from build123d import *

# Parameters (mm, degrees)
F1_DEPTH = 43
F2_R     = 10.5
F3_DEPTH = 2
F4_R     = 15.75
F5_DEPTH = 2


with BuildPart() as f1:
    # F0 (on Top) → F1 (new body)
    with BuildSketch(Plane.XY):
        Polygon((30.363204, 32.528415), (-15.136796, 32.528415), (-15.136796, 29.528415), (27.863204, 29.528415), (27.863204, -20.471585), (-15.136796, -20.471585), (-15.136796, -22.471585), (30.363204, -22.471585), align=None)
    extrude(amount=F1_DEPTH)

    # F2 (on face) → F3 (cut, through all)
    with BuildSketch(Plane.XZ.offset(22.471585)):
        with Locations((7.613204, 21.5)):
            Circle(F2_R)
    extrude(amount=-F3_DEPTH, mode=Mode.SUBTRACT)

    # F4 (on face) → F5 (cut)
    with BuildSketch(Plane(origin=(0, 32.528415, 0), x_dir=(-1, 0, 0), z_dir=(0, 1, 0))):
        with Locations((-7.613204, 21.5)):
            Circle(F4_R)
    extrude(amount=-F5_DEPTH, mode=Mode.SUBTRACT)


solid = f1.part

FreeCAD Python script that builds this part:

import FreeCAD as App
import Part
import Sketcher

V = App.Vector
Q = App.Units.Quantity

doc = App.newDocument("Part")
params = doc.addObject("Spreadsheet::Sheet", "Params")
for row, (alias, value) in enumerate([
    ("sketch1_width", "43 mm"),
    ("sketch1_height", "3 mm"),
    ("sketch1_height2", "50 mm"),
    ("sketch1_height3", "2 mm"),
    ("sketch1_width2", "45.5 mm"),
    ("pad1_length", "43 mm"),
    ("sketch2_diameter", "21 mm"),
    ("pocket1_length", "2 mm"),
    ("sketch3_diameter", "31.5 mm"),
    ("pocket2_length", "2 mm"),
], start=1):
    params.set(f"A{row}", alias)
    params.set(f"B{row}", "=" + value)
    params.setAlias(f"B{row}", alias)

body = doc.addObject("PartDesign::Body", "Body")

sketch1 = doc.addObject("Sketcher::SketchObject", "Sketch")
body.addObject(sketch1)
sketch1.AttachmentSupport = (doc.XY_Plane, [""])
sketch1.MapMode = "FlatFace"
sketch1.addGeometry([
    Part.LineSegment(V(30.363204, 32.528415, 0), V(-15.136796, 32.528415, 0)),
    Part.LineSegment(V(-15.136796, 32.528415, 0), V(-15.136796, 29.528415, 0)),
    Part.LineSegment(V(-15.136796, 29.528415, 0), V(27.863204, 29.528415, 0)),
    Part.LineSegment(V(27.863204, 29.528415, 0), V(27.863204, -20.471585, 0)),
    Part.LineSegment(V(27.863204, -20.471585, 0), V(-15.136796, -20.471585, 0)),
    Part.LineSegment(V(-15.136796, -20.471585, 0), V(-15.136796, -22.471585, 0)),
    Part.LineSegment(V(-15.136796, -22.471585, 0), V(30.363204, -22.471585, 0)),
    Part.LineSegment(V(30.363204, -22.471585, 0), V(30.363204, 32.528415, 0)),
], False)
sketch1.addConstraint([
    Sketcher.Constraint("Coincident", 0, 2, 1, 1),
    Sketcher.Constraint("Coincident", 1, 2, 2, 1),
    Sketcher.Constraint("Coincident", 2, 2, 3, 1),
    Sketcher.Constraint("Coincident", 3, 2, 4, 1),
    Sketcher.Constraint("Coincident", 4, 2, 5, 1),
    Sketcher.Constraint("Coincident", 5, 2, 6, 1),
    Sketcher.Constraint("Coincident", 6, 2, 7, 1),
    Sketcher.Constraint("Coincident", 7, 2, 0, 1),
    Sketcher.Constraint("Horizontal", 0),
    Sketcher.Constraint("Vertical", 1),
    Sketcher.Constraint("Horizontal", 2),
    Sketcher.Constraint("Vertical", 3),
    Sketcher.Constraint("Horizontal", 4),
    Sketcher.Constraint("Vertical", 5),
    Sketcher.Constraint("Horizontal", 6),
    Sketcher.Constraint("Vertical", 7),
    Sketcher.Constraint("Vertical", 1, 2, 4, 2),
    Sketcher.Constraint("DistanceX", 2, 1, 2, 2, Q("43 mm")),
    Sketcher.Constraint("DistanceY", 1, 2, 1, 1, Q("3 mm")),
    Sketcher.Constraint("DistanceY", 3, 2, 3, 1, Q("50 mm")),
    Sketcher.Constraint("DistanceY", 5, 2, 5, 1, Q("2 mm")),
    Sketcher.Constraint("DistanceX", 0, 2, 0, 1, Q("45.5 mm")),
    Sketcher.Constraint("DistanceX", 0, 2, -1, 1, Q("15.136796 mm")),
    Sketcher.Constraint("DistanceY", -1, 1, 0, 2, Q("32.528415 mm")),
])
sketch1.setExpression("Constraints[17]", "Params.sketch1_width")
sketch1.setExpression("Constraints[18]", "Params.sketch1_height")
sketch1.setExpression("Constraints[19]", "Params.sketch1_height2")
sketch1.setExpression("Constraints[20]", "Params.sketch1_height3")
sketch1.setExpression("Constraints[21]", "Params.sketch1_width2")
pad1 = doc.addObject("PartDesign::Pad", "Pad")
body.addObject(pad1)
pad1.Profile = sketch1
pad1.setExpression("Length", "Params.pad1_length")

sketch2 = doc.addObject("Sketcher::SketchObject", "Sketch001")
body.addObject(sketch2)
sketch2.AttachmentSupport = (doc.XZ_Plane, [""])
sketch2.MapMode = "FlatFace"
sketch2.AttachmentOffset = App.Placement(V(0, 0, 22.471585), App.Rotation())
sketch2.addGeometry(Part.Circle(V(7.613204, 21.5, 0), V(0, 0, 1), 10.5), False)
sketch2.addConstraint([
    Sketcher.Constraint("Diameter", 0, Q("21 mm")),
    Sketcher.Constraint("DistanceY", -1, 1, 0, 3, Q("21.5 mm")),
    Sketcher.Constraint("DistanceX", -1, 1, 0, 3, Q("7.613204 mm")),
])
sketch2.setExpression("Constraints[0]", "Params.sketch2_diameter")
pocket1 = doc.addObject("PartDesign::Pocket", "Pocket")
body.addObject(pocket1)
pocket1.Profile = sketch2
pocket1.setExpression("Length", "Params.pocket1_length")

sketch3 = doc.addObject("Sketcher::SketchObject", "Sketch002")
body.addObject(sketch3)
sketch3.AttachmentSupport = (doc.XZ_Plane, [""])
sketch3.MapMode = "FlatFace"
sketch3.AttachmentOffset = App.Placement(V(0, 0, -32.528415), App.Rotation())
sketch3.addGeometry(Part.Circle(V(7.613204, 21.5, 0), V(0, 0, 1), 15.75), False)
sketch3.addConstraint([
    Sketcher.Constraint("Diameter", 0, Q("31.5 mm")),
    Sketcher.Constraint("DistanceY", -1, 1, 0, 3, Q("21.5 mm")),
    Sketcher.Constraint("DistanceX", -1, 1, 0, 3, Q("7.613204 mm")),
])
sketch3.setExpression("Constraints[0]", "Params.sketch3_diameter")
pocket2 = doc.addObject("PartDesign::Pocket", "Pocket001")
body.addObject(pocket2)
pocket2.Profile = sketch3
pocket2.setExpression("Length", "Params.pocket2_length")
pocket2.Reversed = True

doc.recompute()
